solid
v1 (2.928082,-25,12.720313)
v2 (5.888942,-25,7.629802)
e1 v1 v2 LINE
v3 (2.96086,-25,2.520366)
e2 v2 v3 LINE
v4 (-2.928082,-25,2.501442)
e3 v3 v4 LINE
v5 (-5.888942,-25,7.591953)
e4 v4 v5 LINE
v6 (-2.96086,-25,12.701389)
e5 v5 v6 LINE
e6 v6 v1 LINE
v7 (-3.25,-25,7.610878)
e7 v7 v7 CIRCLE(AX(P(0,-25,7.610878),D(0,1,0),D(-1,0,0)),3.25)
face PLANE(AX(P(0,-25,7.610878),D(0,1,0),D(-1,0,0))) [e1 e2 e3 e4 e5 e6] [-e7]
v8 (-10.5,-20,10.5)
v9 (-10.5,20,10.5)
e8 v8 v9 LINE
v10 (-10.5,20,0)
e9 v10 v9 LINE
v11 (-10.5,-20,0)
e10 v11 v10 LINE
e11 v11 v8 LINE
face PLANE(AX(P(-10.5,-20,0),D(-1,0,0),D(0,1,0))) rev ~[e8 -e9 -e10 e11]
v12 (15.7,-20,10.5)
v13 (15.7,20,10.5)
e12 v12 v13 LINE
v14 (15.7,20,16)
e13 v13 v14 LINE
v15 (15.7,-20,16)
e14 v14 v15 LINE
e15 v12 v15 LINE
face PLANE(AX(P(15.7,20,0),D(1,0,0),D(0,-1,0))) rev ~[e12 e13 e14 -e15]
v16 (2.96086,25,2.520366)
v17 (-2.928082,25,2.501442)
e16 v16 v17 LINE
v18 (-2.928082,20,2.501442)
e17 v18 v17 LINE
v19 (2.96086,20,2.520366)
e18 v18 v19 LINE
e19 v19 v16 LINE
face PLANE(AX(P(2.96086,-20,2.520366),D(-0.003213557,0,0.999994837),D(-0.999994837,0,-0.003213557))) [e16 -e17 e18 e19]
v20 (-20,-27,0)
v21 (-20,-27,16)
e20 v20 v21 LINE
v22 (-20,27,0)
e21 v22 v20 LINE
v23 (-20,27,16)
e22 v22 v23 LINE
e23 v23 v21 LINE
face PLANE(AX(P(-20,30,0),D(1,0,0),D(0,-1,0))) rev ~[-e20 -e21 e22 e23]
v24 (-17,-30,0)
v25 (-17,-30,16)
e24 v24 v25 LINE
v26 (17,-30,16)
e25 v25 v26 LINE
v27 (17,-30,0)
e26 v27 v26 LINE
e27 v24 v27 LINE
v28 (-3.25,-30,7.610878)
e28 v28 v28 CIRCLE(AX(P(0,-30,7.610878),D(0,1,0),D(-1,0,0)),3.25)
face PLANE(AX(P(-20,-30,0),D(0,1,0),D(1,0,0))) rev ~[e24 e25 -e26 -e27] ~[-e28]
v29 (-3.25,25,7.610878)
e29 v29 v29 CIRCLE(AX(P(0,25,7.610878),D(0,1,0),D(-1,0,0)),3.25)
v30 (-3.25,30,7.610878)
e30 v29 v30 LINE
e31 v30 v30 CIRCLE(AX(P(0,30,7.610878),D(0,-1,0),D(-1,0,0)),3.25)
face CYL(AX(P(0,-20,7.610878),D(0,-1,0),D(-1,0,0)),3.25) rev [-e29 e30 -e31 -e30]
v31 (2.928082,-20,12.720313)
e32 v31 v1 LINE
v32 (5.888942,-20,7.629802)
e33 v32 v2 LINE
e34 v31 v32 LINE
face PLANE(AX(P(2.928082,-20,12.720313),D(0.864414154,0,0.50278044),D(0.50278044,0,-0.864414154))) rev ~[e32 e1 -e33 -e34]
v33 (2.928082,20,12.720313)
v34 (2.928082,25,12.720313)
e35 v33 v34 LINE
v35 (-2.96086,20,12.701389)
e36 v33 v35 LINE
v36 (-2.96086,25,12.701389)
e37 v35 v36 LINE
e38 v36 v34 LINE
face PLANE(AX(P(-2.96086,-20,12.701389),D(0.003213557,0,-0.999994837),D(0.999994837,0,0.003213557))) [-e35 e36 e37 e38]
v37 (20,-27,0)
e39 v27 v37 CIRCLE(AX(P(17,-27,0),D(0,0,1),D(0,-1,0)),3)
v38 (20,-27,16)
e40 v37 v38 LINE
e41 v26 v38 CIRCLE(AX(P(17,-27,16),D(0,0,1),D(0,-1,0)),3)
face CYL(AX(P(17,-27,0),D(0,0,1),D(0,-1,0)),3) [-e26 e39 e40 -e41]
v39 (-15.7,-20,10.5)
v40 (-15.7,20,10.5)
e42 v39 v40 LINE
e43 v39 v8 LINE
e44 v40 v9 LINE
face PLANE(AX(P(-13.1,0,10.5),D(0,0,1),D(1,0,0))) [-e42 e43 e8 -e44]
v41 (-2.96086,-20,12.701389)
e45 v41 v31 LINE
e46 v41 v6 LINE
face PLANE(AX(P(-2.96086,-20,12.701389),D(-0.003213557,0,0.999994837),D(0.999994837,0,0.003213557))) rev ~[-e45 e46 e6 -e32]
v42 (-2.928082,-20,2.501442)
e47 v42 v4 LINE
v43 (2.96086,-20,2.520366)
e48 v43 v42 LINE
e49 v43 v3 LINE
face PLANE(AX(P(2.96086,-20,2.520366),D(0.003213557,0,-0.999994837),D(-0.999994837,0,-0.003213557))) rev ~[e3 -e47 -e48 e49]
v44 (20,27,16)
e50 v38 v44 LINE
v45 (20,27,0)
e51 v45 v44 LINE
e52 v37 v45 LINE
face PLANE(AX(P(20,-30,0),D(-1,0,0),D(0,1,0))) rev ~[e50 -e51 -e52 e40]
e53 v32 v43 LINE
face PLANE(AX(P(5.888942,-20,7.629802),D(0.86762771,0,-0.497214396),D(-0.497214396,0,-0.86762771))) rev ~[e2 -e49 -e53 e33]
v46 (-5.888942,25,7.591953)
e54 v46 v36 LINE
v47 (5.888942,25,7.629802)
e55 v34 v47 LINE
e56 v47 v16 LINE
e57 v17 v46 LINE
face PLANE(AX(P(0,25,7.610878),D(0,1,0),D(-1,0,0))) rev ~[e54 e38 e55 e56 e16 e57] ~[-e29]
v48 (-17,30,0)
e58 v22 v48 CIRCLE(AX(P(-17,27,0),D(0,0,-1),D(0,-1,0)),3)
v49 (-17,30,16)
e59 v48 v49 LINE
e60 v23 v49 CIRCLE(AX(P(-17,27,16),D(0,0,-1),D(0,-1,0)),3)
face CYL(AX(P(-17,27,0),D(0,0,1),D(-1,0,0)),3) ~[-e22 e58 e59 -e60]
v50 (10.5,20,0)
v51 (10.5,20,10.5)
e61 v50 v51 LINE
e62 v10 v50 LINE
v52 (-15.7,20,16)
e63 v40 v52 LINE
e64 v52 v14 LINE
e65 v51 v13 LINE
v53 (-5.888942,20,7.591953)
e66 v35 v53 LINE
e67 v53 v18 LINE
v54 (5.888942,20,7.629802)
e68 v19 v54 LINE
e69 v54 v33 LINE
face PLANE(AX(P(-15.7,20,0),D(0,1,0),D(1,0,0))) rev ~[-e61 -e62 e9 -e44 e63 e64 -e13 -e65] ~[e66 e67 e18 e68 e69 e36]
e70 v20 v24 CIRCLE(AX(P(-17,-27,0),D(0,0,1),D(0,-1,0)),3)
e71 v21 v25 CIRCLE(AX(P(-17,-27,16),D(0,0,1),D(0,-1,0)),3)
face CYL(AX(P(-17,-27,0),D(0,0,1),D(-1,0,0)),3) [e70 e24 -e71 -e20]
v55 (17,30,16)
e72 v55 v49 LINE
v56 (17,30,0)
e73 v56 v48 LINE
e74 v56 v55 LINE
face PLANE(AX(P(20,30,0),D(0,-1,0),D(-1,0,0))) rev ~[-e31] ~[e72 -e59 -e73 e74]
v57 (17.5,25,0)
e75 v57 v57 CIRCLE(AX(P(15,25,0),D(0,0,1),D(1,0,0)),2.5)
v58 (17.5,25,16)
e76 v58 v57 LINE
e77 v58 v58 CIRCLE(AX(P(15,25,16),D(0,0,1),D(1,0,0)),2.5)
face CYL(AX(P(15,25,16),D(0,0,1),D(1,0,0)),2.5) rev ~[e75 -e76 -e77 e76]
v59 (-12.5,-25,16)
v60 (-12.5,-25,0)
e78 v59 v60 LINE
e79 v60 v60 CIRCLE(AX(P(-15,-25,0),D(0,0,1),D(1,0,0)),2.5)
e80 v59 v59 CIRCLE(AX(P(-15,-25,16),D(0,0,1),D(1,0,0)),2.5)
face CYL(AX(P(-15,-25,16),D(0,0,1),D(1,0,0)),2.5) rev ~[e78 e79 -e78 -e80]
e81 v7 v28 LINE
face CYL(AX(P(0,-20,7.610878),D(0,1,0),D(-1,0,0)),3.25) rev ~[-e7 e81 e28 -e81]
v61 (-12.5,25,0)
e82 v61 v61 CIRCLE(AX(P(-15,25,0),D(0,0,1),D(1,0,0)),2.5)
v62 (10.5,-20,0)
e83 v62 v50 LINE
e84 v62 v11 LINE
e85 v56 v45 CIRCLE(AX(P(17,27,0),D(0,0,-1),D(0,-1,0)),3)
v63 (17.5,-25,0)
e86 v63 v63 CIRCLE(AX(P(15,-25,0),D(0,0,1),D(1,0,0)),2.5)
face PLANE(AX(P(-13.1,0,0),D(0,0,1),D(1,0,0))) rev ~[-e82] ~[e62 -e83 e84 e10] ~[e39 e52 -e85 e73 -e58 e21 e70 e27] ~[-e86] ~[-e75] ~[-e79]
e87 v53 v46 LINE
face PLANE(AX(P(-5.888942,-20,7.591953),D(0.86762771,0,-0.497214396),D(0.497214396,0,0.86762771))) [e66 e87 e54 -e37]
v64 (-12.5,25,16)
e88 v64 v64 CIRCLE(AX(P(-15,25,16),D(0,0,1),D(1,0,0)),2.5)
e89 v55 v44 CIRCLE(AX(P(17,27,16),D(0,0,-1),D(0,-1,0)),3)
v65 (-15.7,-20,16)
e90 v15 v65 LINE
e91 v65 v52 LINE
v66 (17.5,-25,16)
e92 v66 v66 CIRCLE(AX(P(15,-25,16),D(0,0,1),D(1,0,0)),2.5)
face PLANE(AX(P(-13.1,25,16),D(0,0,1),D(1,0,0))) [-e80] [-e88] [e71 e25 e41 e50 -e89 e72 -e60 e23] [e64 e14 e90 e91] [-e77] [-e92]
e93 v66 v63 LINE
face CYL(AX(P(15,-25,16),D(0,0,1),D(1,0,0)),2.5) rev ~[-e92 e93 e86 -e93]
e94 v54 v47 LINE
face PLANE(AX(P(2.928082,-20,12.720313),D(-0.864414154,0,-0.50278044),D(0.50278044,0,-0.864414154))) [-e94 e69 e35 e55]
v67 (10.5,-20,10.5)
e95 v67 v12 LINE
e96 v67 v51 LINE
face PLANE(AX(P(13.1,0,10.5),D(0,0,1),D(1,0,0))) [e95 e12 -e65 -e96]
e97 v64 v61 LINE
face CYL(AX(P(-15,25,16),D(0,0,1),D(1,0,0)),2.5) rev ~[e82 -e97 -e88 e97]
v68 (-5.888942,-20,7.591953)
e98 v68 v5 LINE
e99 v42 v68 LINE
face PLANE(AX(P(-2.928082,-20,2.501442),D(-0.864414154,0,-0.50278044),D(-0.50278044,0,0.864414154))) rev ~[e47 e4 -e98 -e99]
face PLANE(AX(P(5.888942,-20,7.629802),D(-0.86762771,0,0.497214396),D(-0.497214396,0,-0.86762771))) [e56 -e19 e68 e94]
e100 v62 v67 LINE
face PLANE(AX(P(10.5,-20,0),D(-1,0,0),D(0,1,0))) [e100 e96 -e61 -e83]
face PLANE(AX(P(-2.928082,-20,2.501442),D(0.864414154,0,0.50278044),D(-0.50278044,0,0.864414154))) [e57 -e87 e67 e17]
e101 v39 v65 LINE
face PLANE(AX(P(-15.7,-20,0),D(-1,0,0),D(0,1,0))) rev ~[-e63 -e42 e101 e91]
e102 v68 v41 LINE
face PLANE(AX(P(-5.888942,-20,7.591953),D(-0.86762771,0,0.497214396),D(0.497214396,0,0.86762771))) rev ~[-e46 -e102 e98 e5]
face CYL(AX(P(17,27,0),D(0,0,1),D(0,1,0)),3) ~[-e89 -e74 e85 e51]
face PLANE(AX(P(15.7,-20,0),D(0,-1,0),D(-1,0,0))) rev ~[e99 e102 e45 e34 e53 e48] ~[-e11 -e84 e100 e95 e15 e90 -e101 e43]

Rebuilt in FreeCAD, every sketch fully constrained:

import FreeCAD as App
import Part
import Sketcher
from FreeCAD import Vector
Q = App.Units.Quantity


def edges_at(feature, points):
    """Names of the edges that pass closest to the given points."""
    edges = feature.Shape.Edges
    near = lambda p: min(range(len(edges)), key=lambda i: edges[i].distToShape(Part.Vertex(*p))[0])
    return sorted({f"Edge{near(p) + 1}" for p in points})


def add_polygon(sketch, points):
    """Adds a closed chain of lines whose ends are joined by coincident constraints."""
    first, n = sketch.GeometryCount, len(points)
    for a, b in zip(points, points[1:] + points[:1]):
        sketch.addGeometry(Part.LineSegment(App.Vector(*a, 0), App.Vector(*b, 0)), False)
    for i in range(n):
        sketch.addConstraint(Sketcher.Constraint("Coincident", first + i, 2, first + (i + 1) % n, 1))

doc = App.newDocument("Part")
params = doc.addObject("Spreadsheet::Sheet", "Params")
for row, (alias, value) in enumerate([
    ("sketch1_width", "40 mm"),
    ("sketch1_height", "60 mm"),
    ("sketch1_width2", "31.4 mm"),
    ("pad1_length", "16 mm"),
    ("sketch2_height", "40 mm"),
    ("sketch2_width", "5.2 mm"),
    ("pad2_length", "10.5 mm"),
    ("sketch3_diameter", "6.5 mm"),
    ("sketch4_diameter", "6.5 mm"),
    ("pocket2_length", "5 mm"),
    ("pocket2_length2", "45 mm"),
    ("sketch5_diameter", "5 mm"),
    ("pocket3_length", "20 mm"),
    ("fillet_radius", "3 mm"),
], start=1):
    params.set(f"A{row}", alias)
    params.set(f"B{row}", "=" + value)
    params.setAlias(f"B{row}", alias)

body = doc.addObject("PartDesign::Body", "Body")

sketch1 = doc.addObject("Sketcher::SketchObject", "Sketch")
body.addObject(sketch1)
sketch1.AttachmentSupport = (doc.XY_Plane, [""])
sketch1.MapMode = "FlatFace"
add_polygon(sketch1, [(-20, 30), (-20, -30), (20, -30), (20, 30)])
add_polygon(sketch1, [(-16, 20), (16, 20), (16, -20), (-16, -20)])
sketch1.addConstraint([
    Sketcher.Constraint("Vertical", 0),
    Sketcher.Constraint("Horizontal", 1),
    Sketcher.Constraint("Vertical", 2),
    Sketcher.Constraint("Horizontal", 3),
    Sketcher.Constraint("Horizontal", 4),
    Sketcher.Constraint("Vertical", 5),
    Sketcher.Constraint("Horizontal", 6),
    Sketcher.Constraint("Vertical", 7),
    Sketcher.Constraint("Symmetric", 0, 2, 2, 2, -1, 1),
    Sketcher.Constraint("Symmetric", 4, 2, 6, 2, -1, 1),
    Sketcher.Constraint("Equal", 3, 5),
    Sketcher.Constraint("DistanceX", 1, 1, 1, 2, Q("40 mm")),
    Sketcher.Constraint("DistanceY", 0, 2, 0, 1, Q("60 mm")),
    Sketcher.Constraint("DistanceX", 4, 1, 4, 2, Q("31.4 mm")),
])
sketch1.setExpression("Constraints[19]", "Params.sketch1_width")
sketch1.setExpression("Constraints[20]", "Params.sketch1_height")
sketch1.setExpression("Constraints[21]", "Params.sketch1_width2")
pad1 = doc.addObject("PartDesign::Pad", "Pad")
body.addObject(pad1)
pad1.Profile = sketch1
pad1.setExpression("Length", "Params.pad1_length")

sketch2 = doc.addObject("Sketcher::SketchObject", "Sketch001")
body.addObject(sketch2)
sketch2.AttachmentSupport = (doc.XY_Plane, [""])
sketch2.MapMode = "FlatFace"
add_polygon(sketch2, [(-16, 20), (-16, -20), (-10, -20), (-10, 20)])
add_polygon(sketch2, [(10, 20), (10, -20), (16, -20), (16, 20)])
sketch2.addConstraint([
    Sketcher.Constraint("Vertical", 0),
    Sketcher.Constraint("Horizontal", 1),
    Sketcher.Constraint("Vertical", 2),
    Sketcher.Constraint("Horizontal", 3),
    Sketcher.Constraint("Vertical", 4),
    Sketcher.Constraint("Horizontal", 5),
    Sketcher.Constraint("Vertical", 6),
    Sketcher.Constraint("Horizontal", 7),
    Sketcher.Constraint("Symmetric", 2, 2, 4, 2, -1, 1),
    Sketcher.Constraint("Symmetric", 0, 2, 6, 2, -1, 1),
    Sketcher.Constraint("Horizontal", 1, 2, 4, 2),
    Sketcher.Constraint("DistanceY", 0, 2, 0, 1, Q("40 mm")),
    Sketcher.Constraint("DistanceX", 1, 1, 1, 2, Q("5.2 mm")),
    Sketcher.Constraint("DistanceX", 1, 2, 4, 2, Q("21 mm")),
])
sketch2.setExpression("Constraints[19]", "Params.sketch2_height")
sketch2.setExpression("Constraints[20]", "Params.sketch2_width")
pad2 = doc.addObject("PartDesign::Pad", "Pad001")
body.addObject(pad2)
pad2.Profile = sketch2
pad2.setExpression("Length", "Params.pad2_length")

sketch3 = doc.addObject("Sketcher::SketchObject", "Sketch002")
body.addObject(sketch3)
sketch3.AttachmentSupport = (doc.XZ_Plane, [""])
sketch3.MapMode = "FlatFace"
sketch3.AttachmentOffset = App.Placement(Vector(0, 0, 20), App.Rotation())
sketch3.addGeometry(Part.Circle(Vector(0, 7.6, 0), Vector(0, 0, 1), 3.2), False)
sketch3.addConstraint([
    Sketcher.Constraint("PointOnObject", 0, 3, -2),
    Sketcher.Constraint("Diameter", 0, Q("6.5 mm")),
    Sketcher.Constraint("DistanceY", -1, 1, 0, 3, Q("7.610878 mm")),
])
sketch3.setExpression("Constraints[1]", "Params.sketch3_diameter")
pocket1 = doc.addObject("PartDesign::Pocket", "Pocket")
body.addObject(pocket1)
pocket1.Profile = sketch3
pocket1.Type = "ThroughAll"
pocket1.Midplane = True

sketch4 = doc.addObject("Sketcher::SketchObject", "Sketch003")
body.addObject(sketch4)
sketch4.AttachmentSupport = (doc.XZ_Plane, [""])
sketch4.MapMode = "FlatFace"
sketch4.AttachmentOffset = App.Placement(Vector(0, 0, 20), App.Rotation())
add_polygon(sketch4, [(2.9, 12.7), (5.9, 7.6), (3, 2.5), (-2.9, 2.5), (-5.9, 7.6), (-3, 12.7)])
sketch4.addGeometry(Part.Circle(Vector(0, 7.6, 0), Vector(0, 0, 1), 3.2), False)
sketch4.addConstraint([
    Sketcher.Constraint("PointOnObject", 6, 3, -2),
    Sketcher.Constraint("Parallel", 0, 3),
    Sketcher.Constraint("Parallel", 1, 4),
    Sketcher.Constraint("Parallel", 2, 5),
    Sketcher.Constraint("Equal", 0, 1),
    Sketcher.Constraint("Equal", 1, 2),
    Sketcher.Constraint("Equal", 2, 3),
    Sketcher.Constraint("Diameter", 6, Q("6.5 mm")),
    Sketcher.Constraint("DistanceX", -1, 1, 1, 2, Q("2.96086 mm")),
    Sketcher.Constraint("DistanceY", -1, 1, 2, 2, Q("2.501442 mm")),
    Sketcher.Constraint("DistanceX", 4, 2, -1, 1, Q("2.96086 mm")),
    Sketcher.Constraint("DistanceY", -1, 1, 4, 2, Q("12.701389 mm")),
    Sketcher.Constraint("DistanceY", 1, 2, 6, 3, Q("5.090511 mm")),
    Sketcher.Constraint("DistanceY", 2, 2, 0, 2, Q("5.12836 mm")),
    Sketcher.Constraint("DistanceX", 3, 2, 2, 2, Q("2.96086 mm")),
])
sketch4.setExpression("Constraints[13]", "Params.sketch4_diameter")
pocket2 = doc.addObject("PartDesign::Pocket", "Pocket001")
body.addObject(pocket2)
pocket2.Profile = sketch4
pocket2.Type = "TwoLengths"
pocket2.setExpression("Length", "Params.pocket2_length")
pocket2.setExpression("Length2", "Params.pocket2_length2")
pocket2.Reversed = True

sketch5 = doc.addObject("Sketcher::SketchObject", "Sketch004")
body.addObject(sketch5)
sketch5.AttachmentSupport = (doc.XY_Plane, [""])
sketch5.MapMode = "FlatFace"
sketch5.AttachmentOffset = App.Placement(Vector(0, 0, 16), App.Rotation())
sketch5.addGeometry([
    Part.Circle(Vector(-15, -25, 0), Vector(0, 0, 1), 2.5),
    Part.Circle(Vector(15, -25, 0), Vector(0, 0, 1), 2.5),
    Part.Circle(Vector(15, 25, 0), Vector(0, 0, 1), 2.5),
    Part.Circle(Vector(-15, 25, 0), Vector(0, 0, 1), 2.5),
], False)
sketch5.addConstraint([
    Sketcher.Constraint("Equal", 0, 1),
    Sketcher.Constraint("Equal", 1, 2),
    Sketcher.Constraint("Equal", 2, 3),
    Sketcher.Constraint("Symmetric", 0, 3, 2, 3, -1, 1),
    Sketcher.Constraint("Symmetric", 1, 3, 3, 3, -1, 1),
    Sketcher.Constraint("Symmetric", 0, 3, 1, 3, -2),
    Sketcher.Constraint("Diameter", 0, Q("5 mm")),
    Sketcher.Constraint("DistanceX", 0, 3, -1, 1, Q("15 mm")),
    Sketcher.Constraint("DistanceY", 0, 3, -1, 1, Q("25 mm")),
])
sketch5.setExpression("Constraints[6]", "Params.sketch5_diameter")
pocket3 = doc.addObject("PartDesign::Pocket", "Pocket002")
body.addObject(pocket3)
pocket3.Profile = sketch5
pocket3.setExpression("Length", "Params.pocket3_length")
doc.recompute()

fillet = doc.addObject("PartDesign::Fillet", "Fillet")
body.addObject(fillet)
fillet.Base = (pocket3, edges_at(pocket3, [
    (20, -30, 8),
    (20, 30, 8),
    (-20, 30, 8),
    (-20, -30, 8),
]))
fillet.setExpression("Radius", "Params.fillet_radius")

doc.recompute()
